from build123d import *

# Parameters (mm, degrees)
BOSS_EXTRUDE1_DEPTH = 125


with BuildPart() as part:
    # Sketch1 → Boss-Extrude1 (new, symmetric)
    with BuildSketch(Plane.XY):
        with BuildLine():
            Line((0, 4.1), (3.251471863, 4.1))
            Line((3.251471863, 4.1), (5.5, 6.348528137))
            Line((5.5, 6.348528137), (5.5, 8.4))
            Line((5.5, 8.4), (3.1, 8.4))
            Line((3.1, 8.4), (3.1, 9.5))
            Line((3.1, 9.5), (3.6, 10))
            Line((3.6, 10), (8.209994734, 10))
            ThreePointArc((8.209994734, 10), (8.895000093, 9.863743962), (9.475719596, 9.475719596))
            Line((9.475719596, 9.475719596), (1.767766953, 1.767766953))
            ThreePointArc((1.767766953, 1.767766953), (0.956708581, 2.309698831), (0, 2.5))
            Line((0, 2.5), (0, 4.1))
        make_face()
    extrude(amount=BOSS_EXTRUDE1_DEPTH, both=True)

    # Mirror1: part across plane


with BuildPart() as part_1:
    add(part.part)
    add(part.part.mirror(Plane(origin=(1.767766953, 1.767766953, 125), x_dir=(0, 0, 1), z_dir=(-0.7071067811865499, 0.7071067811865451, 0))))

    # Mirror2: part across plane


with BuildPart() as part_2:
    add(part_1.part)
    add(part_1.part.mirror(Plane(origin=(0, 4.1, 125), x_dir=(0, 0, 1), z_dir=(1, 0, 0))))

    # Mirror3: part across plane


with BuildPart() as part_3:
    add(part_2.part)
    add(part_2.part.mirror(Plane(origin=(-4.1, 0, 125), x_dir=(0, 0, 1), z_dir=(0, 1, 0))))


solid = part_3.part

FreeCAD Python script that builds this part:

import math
import FreeCAD as App
import Part
import Sketcher

V = App.Vector
Q = App.Units.Quantity

doc = App.newDocument("Part")
body = doc.addObject("PartDesign::Body", "Body")

# Sketch on XY plane
sketch1 = body.newObject("Sketcher::SketchObject", "Sketch")
sketch1.AttachmentSupport = (doc.getObject("XY_Plane"), [""])
sketch1.MapMode = "FlatFace"
sketch1.addGeometry([
    Part.LineSegment(V(3.3, 4.1, 0), V(0, 4.1, 0)),  # 0
    Part.LineSegment(V(0, 4.1, 0), V(0, 2.5, 0)),  # 1
    Part.ArcOfCircle(Part.Circle(V(0, 0, 0), V(0, 0, 1), 2.5), math.radians(45), math.radians(90)),  # 2
    Part.LineSegment(V(1.8, 1.8, 0), V(9.5, 9.5, 0)),  # 3
    Part.ArcOfCircle(Part.Circle(V(8.2, 8.2, 0), V(0, 0, 1), 1.8), math.radians(45), math.radians(90)),  # 4
    Part.LineSegment(V(8.2, 10, 0), V(3.6, 10, 0)),  # 5
    Part.LineSegment(V(3.6, 10, 0), V(3.1, 9.5, 0)),  # 6
    Part.LineSegment(V(3.1, 9.5, 0), V(3.1, 8.4, 0)),  # 7
    Part.LineSegment(V(3.1, 8.4, 0), V(5.5, 8.4, 0)),  # 8
    Part.LineSegment(V(5.5, 8.4, 0), V(5.5, 6.3, 0)),  # 9
    Part.LineSegment(V(5.5, 6.3, 0), V(3.3, 4.1, 0)),  # 10
], False)
sketch1.addConstraint([
    Sketcher.Constraint("Coincident", 0, 2, 1, 1),
    Sketcher.Constraint("Coincident", 1, 2, 2, 2),
    Sketcher.Constraint("Coincident", 2, 1, 3, 1),
    Sketcher.Constraint("Coincident", 3, 2, 4, 1),
    Sketcher.Constraint("Tangent", 4, 2, 5, 1),
    Sketcher.Constraint("Coincident", 5, 2, 6, 1),
    Sketcher.Constraint("Coincident", 6, 2, 7, 1),
    Sketcher.Constraint("Coincident", 7, 2, 8, 1),
    Sketcher.Constraint("Coincident", 8, 2, 9, 1),
    Sketcher.Constraint("Coincident", 9, 2, 10, 1),
    Sketcher.Constraint("Coincident", 10, 2, 0, 1),
    Sketcher.Constraint("Horizontal", 0),
    Sketcher.Constraint("Vertical", 1),
    Sketcher.Constraint("Horizontal", 5),
    Sketcher.Constraint("Vertical", 7),
    Sketcher.Constraint("Horizontal", 8),
    Sketcher.Constraint("Vertical", 9),
    Sketcher.Constraint("Coincident", 2, 3, -1, 1),
    Sketcher.Constraint("PointOnObject", 0, 2, -2),
    Sketcher.Constraint("Parallel", 3, 6),
    Sketcher.Constraint("Parallel", 6, 10),
    Sketcher.Constraint("Radius", 2, 2.5),
    Sketcher.Constraint("Angle", 3, Q("45 deg")),
    Sketcher.Constraint("DistanceX", 8, 1, 8, 2, 2.4),
    Sketcher.Constraint("DistanceY", 1, 2, 1, 1, 1.6),
    Sketcher.Constraint("DistanceY", 7, 2, 7, 1, 1.1),
    Sketcher.Constraint("DistanceY", -1, 1, 4, 2, 10.0),
    Sketcher.Constraint("DistanceX", -1, 1, 5, 2, 3.6),
    Sketcher.Constraint("DistanceX", -1, 1, 6, 2, 3.1),
    Sketcher.Constraint("Radius", 4, 1.790005),
    Sketcher.Constraint("Distance", 10, 3.179899),
    Sketcher.Constraint("Distance", 3, 10.900691),
    Sketcher.Constraint("DistanceX", -1, 1, 3, 2, 9.47572),
])
pad1 = body.newObject("PartDesign::Pad", "Pad")
pad1.Profile = sketch1
pad1.Length = 250
pad1.Midplane = True
body2 = doc.addObject("PartDesign::Body", "Body001")
doc.recompute()

body2.BaseFeature = body
doc.recompute()

mirroring = doc.addObject("Part::Mirroring", "Mirroring")
mirroring.Source = body
mirroring.Base = V(1.767767, 1.767767, 125)
mirroring.Normal = V(-0.707106781, 0.707106781, 0)
body3 = doc.addObject("PartDesign::Body", "Body002")
body3.BaseFeature = mirroring
boolean = body2.newObject("PartDesign::Boolean", "Boolean")
boolean.Type = "Fuse"
boolean.addObjects([body3])
doc.recompute()
body4 = doc.addObject("PartDesign::Body", "Body003")
doc.recompute()

body4.BaseFeature = body2
doc.recompute()

mirroring2 = doc.addObject("Part::Mirroring", "Mirroring001")
mirroring2.Source = body2
mirroring2.Base = V(0, 4.1, 125)
mirroring2.Normal = V(1, 0, 0)
body5 = doc.addObject("PartDesign::Body", "Body004")
body5.BaseFeature = mirroring2
boolean2 = body4.newObject("PartDesign::Boolean", "Boolean001")
boolean2.Type = "Fuse"
boolean2.addObjects([body5])
doc.recompute()
body6 = doc.addObject("PartDesign::Body", "Body005")
doc.recompute()

body6.BaseFeature = body4
doc.recompute()

mirroring3 = doc.addObject("Part::Mirroring", "Mirroring002")
mirroring3.Source = body4
mirroring3.Base = V(-4.1, 0, 125)
mirroring3.Normal = V(0, 1, 0)
body7 = doc.addObject("PartDesign::Body", "Body006")
body7.BaseFeature = mirroring3
boolean3 = body6.newObject("PartDesign::Boolean", "Boolean002")
boolean3.Type = "Fuse"
boolean3.addObjects([body7])
doc.recompute()
mirroring.Visibility = False
mirroring2.Visibility = False
mirroring3.Visibility = False

doc.recompute()
